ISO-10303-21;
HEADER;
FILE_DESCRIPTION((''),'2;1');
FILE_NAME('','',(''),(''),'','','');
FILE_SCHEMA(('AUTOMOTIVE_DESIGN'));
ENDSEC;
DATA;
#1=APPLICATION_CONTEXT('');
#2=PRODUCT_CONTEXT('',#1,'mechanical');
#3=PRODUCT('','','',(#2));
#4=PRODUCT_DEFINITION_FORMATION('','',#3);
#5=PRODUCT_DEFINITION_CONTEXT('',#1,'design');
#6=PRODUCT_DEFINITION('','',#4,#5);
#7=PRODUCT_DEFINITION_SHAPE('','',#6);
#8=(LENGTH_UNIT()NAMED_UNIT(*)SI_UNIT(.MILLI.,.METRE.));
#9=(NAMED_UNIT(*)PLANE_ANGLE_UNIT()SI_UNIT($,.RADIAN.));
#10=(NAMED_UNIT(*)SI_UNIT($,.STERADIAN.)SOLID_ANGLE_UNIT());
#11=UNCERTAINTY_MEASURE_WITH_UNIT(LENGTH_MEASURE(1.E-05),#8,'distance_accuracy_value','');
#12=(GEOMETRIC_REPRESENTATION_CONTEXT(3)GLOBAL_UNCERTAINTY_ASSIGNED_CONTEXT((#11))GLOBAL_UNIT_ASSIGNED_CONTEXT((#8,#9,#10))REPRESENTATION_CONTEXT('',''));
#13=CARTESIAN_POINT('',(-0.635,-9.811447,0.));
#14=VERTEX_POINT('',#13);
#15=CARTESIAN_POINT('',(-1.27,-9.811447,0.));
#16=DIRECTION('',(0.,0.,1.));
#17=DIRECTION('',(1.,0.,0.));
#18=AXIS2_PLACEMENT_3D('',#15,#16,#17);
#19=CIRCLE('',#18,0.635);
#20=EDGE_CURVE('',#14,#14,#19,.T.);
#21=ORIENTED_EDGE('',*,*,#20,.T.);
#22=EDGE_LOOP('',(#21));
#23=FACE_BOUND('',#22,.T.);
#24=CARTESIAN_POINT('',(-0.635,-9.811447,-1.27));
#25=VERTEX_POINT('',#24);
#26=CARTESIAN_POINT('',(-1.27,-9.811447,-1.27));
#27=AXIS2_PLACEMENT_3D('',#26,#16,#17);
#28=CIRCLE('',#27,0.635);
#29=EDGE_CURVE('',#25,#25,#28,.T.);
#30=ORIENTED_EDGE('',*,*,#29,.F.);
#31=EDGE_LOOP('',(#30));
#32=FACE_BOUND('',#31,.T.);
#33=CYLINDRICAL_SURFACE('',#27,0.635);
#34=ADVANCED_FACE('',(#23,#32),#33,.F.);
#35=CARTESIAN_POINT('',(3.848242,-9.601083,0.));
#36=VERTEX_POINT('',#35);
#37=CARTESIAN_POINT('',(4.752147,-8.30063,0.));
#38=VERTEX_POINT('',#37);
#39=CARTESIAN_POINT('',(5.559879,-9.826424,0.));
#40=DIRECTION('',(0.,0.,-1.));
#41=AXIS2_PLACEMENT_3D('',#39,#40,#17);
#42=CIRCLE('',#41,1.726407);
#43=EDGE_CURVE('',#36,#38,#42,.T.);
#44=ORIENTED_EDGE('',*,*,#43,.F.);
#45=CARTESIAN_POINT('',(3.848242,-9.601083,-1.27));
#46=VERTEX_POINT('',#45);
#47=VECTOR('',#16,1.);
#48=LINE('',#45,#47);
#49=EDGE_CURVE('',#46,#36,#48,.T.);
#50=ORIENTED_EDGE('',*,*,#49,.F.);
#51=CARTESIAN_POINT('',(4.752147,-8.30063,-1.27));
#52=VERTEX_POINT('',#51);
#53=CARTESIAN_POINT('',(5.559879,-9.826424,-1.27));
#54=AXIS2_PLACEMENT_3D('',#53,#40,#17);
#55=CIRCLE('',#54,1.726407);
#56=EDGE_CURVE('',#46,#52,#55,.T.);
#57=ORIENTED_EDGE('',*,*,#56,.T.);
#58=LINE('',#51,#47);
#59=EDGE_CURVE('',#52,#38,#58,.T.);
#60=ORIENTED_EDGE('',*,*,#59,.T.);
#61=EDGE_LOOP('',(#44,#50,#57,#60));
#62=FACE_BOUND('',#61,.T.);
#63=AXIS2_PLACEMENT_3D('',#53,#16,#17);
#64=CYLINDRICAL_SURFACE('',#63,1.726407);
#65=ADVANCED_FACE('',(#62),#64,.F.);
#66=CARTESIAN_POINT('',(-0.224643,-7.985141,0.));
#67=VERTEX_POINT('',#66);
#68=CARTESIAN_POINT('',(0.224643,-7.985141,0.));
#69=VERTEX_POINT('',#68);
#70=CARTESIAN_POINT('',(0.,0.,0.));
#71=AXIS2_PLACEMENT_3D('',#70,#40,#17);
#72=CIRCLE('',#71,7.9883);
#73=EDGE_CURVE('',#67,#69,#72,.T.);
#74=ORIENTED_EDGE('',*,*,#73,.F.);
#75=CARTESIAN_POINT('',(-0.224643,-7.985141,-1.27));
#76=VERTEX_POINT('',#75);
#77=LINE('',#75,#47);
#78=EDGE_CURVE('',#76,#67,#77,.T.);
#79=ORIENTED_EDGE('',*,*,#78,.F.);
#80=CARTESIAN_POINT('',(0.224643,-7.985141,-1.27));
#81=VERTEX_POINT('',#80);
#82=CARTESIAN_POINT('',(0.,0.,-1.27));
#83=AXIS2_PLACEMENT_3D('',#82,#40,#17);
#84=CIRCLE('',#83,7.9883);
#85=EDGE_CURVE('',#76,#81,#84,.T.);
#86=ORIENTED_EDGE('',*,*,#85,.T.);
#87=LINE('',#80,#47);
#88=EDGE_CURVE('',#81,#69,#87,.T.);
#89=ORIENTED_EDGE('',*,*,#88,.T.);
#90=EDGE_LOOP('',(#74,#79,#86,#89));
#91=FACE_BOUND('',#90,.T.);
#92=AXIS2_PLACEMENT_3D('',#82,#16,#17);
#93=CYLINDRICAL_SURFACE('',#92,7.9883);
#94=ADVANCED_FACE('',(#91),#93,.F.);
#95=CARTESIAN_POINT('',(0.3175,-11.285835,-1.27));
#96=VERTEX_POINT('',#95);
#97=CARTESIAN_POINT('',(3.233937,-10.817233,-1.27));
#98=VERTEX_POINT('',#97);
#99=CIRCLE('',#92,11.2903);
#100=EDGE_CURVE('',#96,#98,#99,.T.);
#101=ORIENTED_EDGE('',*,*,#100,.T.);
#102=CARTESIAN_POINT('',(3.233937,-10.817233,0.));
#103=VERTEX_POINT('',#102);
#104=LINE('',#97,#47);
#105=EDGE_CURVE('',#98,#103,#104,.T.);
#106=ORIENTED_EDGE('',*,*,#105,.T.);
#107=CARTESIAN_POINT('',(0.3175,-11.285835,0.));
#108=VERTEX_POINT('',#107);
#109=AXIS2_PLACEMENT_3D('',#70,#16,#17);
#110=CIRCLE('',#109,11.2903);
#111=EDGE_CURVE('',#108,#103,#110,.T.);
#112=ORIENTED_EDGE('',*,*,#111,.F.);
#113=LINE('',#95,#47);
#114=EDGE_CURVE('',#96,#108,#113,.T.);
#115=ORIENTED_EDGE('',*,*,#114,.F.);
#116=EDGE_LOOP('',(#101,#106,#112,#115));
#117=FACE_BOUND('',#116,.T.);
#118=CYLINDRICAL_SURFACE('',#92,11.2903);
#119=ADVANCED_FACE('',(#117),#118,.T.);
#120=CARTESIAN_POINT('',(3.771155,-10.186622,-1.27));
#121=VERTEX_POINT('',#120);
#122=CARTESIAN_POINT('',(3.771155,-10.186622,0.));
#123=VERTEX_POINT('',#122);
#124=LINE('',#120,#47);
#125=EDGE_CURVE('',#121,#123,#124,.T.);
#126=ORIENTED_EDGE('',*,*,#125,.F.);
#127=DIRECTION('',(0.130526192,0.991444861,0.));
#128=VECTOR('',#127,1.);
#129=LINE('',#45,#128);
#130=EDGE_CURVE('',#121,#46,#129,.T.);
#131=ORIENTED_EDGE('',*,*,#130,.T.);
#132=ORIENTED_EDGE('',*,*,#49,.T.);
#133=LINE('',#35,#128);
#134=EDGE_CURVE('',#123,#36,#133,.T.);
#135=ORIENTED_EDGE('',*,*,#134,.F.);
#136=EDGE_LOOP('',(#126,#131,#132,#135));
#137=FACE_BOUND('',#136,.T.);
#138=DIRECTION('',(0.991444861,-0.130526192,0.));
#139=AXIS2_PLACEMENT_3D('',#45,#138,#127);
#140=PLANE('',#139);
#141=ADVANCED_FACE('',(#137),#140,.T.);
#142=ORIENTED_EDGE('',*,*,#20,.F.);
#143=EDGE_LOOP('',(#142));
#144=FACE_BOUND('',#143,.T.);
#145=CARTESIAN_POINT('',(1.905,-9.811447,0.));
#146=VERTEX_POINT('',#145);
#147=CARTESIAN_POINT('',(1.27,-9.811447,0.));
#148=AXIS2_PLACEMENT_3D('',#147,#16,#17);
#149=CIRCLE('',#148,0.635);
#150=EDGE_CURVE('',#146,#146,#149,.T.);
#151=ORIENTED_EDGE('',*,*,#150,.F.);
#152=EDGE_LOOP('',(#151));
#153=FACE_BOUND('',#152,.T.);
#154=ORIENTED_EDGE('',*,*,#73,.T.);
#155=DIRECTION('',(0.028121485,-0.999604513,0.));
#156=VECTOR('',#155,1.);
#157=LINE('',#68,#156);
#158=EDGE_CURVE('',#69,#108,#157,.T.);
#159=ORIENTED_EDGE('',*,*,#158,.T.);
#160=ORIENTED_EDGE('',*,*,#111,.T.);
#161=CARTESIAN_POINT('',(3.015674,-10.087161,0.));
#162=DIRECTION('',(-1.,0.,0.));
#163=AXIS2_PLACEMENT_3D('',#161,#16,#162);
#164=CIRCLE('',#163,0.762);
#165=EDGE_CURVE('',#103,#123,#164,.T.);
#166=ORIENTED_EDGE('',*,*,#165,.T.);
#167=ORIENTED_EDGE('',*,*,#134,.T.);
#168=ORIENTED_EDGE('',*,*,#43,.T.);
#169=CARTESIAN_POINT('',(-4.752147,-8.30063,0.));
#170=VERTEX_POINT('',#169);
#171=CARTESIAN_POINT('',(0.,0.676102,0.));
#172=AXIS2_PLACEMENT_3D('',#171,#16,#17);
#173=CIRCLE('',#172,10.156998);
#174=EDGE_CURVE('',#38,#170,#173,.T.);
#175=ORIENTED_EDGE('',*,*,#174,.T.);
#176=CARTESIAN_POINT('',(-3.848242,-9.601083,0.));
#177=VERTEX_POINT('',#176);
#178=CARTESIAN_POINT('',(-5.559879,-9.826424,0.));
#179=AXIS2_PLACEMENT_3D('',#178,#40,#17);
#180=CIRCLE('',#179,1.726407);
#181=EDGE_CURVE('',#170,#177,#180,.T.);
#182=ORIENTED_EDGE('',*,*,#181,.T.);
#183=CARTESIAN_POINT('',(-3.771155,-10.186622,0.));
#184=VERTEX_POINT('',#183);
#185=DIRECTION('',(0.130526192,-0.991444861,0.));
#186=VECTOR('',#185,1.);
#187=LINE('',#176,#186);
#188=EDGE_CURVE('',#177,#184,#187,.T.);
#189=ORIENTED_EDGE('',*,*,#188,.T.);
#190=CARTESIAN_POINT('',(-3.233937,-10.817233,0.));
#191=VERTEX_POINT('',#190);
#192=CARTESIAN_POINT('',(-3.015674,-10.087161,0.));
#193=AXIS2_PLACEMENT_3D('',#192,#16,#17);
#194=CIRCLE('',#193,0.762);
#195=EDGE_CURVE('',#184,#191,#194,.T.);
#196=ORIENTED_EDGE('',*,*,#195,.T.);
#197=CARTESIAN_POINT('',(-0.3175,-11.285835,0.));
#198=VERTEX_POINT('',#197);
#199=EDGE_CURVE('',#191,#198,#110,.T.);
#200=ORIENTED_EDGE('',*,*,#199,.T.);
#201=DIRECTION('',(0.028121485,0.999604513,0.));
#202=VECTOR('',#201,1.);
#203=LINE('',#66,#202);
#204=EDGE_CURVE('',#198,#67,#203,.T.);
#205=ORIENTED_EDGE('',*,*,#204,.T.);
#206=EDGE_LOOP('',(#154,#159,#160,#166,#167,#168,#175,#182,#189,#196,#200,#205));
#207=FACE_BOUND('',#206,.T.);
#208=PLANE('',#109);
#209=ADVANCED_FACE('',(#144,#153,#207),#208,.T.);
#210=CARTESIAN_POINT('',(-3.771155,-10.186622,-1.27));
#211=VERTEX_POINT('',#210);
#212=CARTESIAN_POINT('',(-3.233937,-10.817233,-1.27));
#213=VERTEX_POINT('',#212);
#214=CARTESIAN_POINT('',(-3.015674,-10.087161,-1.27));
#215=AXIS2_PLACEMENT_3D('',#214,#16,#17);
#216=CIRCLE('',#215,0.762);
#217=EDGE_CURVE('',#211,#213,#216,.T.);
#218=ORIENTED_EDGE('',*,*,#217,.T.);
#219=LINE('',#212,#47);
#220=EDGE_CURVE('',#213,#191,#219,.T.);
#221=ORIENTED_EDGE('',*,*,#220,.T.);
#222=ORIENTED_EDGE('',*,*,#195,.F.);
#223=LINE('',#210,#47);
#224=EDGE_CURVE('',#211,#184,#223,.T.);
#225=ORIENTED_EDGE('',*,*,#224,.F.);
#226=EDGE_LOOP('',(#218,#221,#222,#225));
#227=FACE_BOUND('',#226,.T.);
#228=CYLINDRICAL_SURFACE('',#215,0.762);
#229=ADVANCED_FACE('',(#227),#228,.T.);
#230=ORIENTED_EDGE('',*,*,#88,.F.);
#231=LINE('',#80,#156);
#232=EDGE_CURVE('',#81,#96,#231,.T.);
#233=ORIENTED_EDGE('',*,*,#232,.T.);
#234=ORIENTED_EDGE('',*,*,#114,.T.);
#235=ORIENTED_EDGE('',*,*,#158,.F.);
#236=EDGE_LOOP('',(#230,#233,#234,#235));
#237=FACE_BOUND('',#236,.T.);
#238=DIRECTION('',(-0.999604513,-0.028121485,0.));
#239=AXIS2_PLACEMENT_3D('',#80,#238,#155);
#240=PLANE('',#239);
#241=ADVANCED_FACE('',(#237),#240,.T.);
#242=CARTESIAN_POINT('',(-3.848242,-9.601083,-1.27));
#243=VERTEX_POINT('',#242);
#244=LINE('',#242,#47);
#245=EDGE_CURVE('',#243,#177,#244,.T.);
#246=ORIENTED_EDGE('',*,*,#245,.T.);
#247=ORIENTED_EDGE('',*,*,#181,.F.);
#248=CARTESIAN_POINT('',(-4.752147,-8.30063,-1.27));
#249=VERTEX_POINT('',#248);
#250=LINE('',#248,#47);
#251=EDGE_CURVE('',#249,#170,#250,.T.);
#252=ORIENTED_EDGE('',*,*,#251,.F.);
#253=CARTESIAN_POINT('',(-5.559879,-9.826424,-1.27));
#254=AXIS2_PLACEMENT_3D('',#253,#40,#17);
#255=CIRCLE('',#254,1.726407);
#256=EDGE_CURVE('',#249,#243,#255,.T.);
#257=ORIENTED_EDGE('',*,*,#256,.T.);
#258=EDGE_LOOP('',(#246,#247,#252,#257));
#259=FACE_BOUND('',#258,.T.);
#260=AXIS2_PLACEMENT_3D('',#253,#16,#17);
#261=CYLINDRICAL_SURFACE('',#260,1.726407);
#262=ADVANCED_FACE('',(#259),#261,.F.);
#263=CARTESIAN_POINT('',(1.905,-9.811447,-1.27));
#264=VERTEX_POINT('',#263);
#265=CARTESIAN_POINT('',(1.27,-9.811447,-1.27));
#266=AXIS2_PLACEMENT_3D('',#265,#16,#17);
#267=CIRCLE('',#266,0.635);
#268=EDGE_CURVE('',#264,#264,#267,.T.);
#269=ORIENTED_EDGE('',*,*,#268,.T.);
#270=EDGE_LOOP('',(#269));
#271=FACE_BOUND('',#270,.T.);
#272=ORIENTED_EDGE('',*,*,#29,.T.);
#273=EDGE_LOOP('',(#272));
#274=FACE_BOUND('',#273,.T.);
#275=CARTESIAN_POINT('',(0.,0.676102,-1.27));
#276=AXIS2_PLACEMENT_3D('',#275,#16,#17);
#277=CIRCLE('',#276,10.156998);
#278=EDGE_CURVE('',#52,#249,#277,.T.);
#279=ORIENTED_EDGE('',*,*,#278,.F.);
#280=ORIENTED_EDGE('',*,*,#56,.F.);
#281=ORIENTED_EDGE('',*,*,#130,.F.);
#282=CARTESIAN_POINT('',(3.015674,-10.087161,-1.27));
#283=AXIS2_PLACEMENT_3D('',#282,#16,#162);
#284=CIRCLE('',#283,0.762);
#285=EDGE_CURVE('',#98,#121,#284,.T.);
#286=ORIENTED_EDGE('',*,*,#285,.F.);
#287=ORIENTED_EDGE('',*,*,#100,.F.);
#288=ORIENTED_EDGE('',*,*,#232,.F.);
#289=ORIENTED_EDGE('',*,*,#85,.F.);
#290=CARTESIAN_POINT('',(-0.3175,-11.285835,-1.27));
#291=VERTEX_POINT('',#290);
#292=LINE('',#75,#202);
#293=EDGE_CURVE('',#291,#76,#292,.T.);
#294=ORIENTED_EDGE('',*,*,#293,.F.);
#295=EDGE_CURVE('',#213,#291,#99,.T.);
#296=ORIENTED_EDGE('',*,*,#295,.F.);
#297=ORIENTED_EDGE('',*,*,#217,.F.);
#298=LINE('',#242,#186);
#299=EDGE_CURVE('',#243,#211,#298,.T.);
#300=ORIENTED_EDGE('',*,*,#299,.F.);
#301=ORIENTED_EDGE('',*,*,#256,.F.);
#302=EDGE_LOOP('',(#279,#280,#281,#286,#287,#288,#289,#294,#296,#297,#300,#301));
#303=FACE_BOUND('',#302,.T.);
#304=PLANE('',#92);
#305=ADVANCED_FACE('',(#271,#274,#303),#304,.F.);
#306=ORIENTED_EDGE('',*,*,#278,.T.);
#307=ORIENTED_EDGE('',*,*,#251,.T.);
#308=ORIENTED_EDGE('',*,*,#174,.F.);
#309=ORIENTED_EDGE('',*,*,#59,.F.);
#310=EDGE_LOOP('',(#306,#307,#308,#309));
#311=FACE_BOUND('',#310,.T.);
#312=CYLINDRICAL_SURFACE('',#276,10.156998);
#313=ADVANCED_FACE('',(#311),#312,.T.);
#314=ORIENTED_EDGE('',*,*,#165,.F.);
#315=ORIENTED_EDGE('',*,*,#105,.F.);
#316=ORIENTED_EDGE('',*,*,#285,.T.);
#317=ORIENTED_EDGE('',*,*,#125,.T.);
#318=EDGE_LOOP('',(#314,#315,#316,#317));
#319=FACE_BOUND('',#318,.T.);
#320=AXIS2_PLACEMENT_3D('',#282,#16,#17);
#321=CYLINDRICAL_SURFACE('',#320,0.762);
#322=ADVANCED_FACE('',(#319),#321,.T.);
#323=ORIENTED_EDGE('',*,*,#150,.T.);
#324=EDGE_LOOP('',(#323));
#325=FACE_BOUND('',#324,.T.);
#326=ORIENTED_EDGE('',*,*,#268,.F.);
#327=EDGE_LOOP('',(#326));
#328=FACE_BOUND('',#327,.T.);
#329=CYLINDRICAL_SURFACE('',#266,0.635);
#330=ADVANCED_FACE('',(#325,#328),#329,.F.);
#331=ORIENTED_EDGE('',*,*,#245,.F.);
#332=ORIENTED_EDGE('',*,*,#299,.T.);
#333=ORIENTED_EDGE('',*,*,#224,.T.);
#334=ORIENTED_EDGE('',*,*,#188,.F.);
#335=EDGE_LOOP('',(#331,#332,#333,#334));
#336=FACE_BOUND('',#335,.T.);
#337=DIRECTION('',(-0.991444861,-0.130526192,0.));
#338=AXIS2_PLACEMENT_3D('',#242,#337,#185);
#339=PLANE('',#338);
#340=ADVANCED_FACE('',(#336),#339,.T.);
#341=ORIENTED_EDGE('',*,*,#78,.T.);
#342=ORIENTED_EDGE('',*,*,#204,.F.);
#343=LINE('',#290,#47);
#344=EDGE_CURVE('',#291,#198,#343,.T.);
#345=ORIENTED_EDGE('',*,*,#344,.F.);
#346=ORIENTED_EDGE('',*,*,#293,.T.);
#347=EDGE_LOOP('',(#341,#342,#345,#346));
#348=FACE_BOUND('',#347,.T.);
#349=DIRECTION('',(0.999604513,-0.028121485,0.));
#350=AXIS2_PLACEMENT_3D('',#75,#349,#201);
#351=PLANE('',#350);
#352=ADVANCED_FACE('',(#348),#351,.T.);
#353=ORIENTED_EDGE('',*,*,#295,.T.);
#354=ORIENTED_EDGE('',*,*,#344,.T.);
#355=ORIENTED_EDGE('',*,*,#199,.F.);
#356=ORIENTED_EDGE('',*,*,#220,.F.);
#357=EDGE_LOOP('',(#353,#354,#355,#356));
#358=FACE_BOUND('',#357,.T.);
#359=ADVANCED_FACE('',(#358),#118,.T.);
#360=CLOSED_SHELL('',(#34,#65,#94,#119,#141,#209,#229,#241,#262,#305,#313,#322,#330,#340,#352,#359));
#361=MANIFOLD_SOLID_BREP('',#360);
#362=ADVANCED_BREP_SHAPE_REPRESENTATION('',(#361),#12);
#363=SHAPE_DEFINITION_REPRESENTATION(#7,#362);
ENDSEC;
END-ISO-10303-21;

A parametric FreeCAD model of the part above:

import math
import FreeCAD as App
import Part
import Sketcher

V = App.Vector
Q = App.Units.Quantity

doc = App.newDocument("Part")
body = doc.addObject("PartDesign::Body", "Body")

sketch1 = body.newObject("Sketcher::SketchObject", "Sketch")
sketch1.AttachmentSupport = (doc.getObject("XY_Plane"), [""])
sketch1.MapMode = "FlatFace"
sketch1.addGeometry([
    Part.LineSegment(V(0.22, -7.99, 0), V(0.32, -11.29, 0)),
    Part.ArcOfCircle(Part.Circle(V(0, 0, 0), V(0, 0, 1), 11.29), math.radians(-88.39), math.radians(-73.36)),
    Part.ArcOfCircle(Part.Circle(V(3.02, -10.09, 0), V(0, 0, 1), 0.76), math.radians(-73), math.radians(-8)),
    Part.LineSegment(V(3.77, -10.19, 0), V(3.85, -9.6, 0)),
    Part.ArcOfCircle(Part.Circle(V(5.56, -9.83, 0), V(0, 0, 1), 1.73), math.radians(118), math.radians(173)),
    Part.ArcOfCircle(Part.Circle(V(0, 0.68, 0), V(0, 0, 1), 10.16), math.radians(-62), math.radians(242)),
    Part.ArcOfCircle(Part.Circle(V(-5.56, -9.83, 0), V(0, 0, 1), 1.73), math.radians(7), math.radians(62)),
    Part.LineSegment(V(-3.85, -9.6, 0), V(-3.77, -10.19, 0)),
    Part.ArcOfCircle(Part.Circle(V(-3.02, -10.09, 0), V(0, 0, 1), 0.76), math.radians(-172), math.radians(-107)),
    Part.ArcOfCircle(Part.Circle(V(0, 0, 0), V(0, 0, 1), 11.29), math.radians(-106.64), math.radians(-91.61)),
    Part.LineSegment(V(-0.32, -11.29, 0), V(-0.22, -7.99, 0)),
    Part.ArcOfCircle(Part.Circle(V(0, 0, 0), V(0, 0, 1), 7.99), math.radians(-88), math.radians(268)),
    Part.Circle(V(-1.27, -9.81, 0), V(0, 0, 1), 0.64),
    Part.Circle(V(1.27, -9.81, 0), V(0, 0, 1), 0.64),
], False)
sketch1.addConstraint([
    Sketcher.Constraint("Coincident", 0, 2, 1, 1),
    Sketcher.Constraint("Tangent", 1, 2, 2, 1),
    Sketcher.Constraint("Tangent", 2, 2, 3, 1),
    Sketcher.Constraint("Tangent", 3, 2, 4, 2),
    Sketcher.Constraint("Tangent", 4, 1, 5, 1),
    Sketcher.Constraint("Tangent", 5, 2, 6, 2),
    Sketcher.Constraint("Tangent", 6, 1, 7, 1),
    Sketcher.Constraint("Tangent", 7, 2, 8, 1),
    Sketcher.Constraint("Tangent", 8, 2, 9, 1),
    Sketcher.Constraint("Coincident", 9, 2, 10, 1),
    Sketcher.Constraint("Coincident", 10, 2, 11, 2),
    Sketcher.Constraint("Coincident", 11, 1, 0, 1),
    Sketcher.Constraint("Coincident", 1, 3, -1, 1),
    Sketcher.Constraint("Coincident", 9, 3, -1, 1),
    Sketcher.Constraint("Coincident", 11, 3, -1, 1),
    Sketcher.Constraint("Equal", 4, 6),
    Sketcher.Constraint("Equal", 2, 8),
    Sketcher.Constraint("Equal", 1, 9),
    Sketcher.Constraint("Equal", 12, 13),
    Sketcher.Constraint("Symmetric", 4, 3, 6, 3, -2),
    Sketcher.Constraint("Symmetric", 12, 3, 13, 3, -2),
    Sketcher.Constraint("Horizontal", 2, 3, 8, 3),
    Sketcher.Constraint("Horizontal", 0, 2, 9, 2),
    Sketcher.Constraint("Horizontal", 10, 2, 11, 1),
    Sketcher.Constraint("Diameter", 12, Q("0.05 in")),
    Sketcher.Constraint("Radius", 2, Q("0.03 in")),
    Sketcher.Constraint("Angle", 3, Q("82.5 deg")),
    Sketcher.Constraint("Radius", 1, Q("0.4445 in")),
    Sketcher.Constraint("Radius", 11, Q("0.3145 in")),
    Sketcher.Constraint("DistanceX", 12, 3, 13, 3, Q("0.1 in")),
    Sketcher.Constraint("Radius", 5, Q("10.156998 mm")),
    Sketcher.Constraint("DistanceX", 12, 3, 0, 2, Q("0.0625 in")),
    Sketcher.Constraint("Radius", 4, Q("1.726407 mm")),
    Sketcher.Constraint("DistanceY", -1, 1, 5, 3, Q("0.676102 mm")),
    Sketcher.Constraint("Distance", 3, Q("0.590591 mm")),
    Sketcher.Constraint("DistanceY", 10, 2, -1, 1, Q("7.985141 mm")),
    Sketcher.Constraint("DistanceY", 0, 2, 13, 3, Q("1.474388 mm")),
])
pad1 = body.newObject("PartDesign::Pad", "Pad")
pad1.Profile = sketch1
pad1.Length = Q("0.05 in")
pad1.Reversed = True

doc.recompute()
